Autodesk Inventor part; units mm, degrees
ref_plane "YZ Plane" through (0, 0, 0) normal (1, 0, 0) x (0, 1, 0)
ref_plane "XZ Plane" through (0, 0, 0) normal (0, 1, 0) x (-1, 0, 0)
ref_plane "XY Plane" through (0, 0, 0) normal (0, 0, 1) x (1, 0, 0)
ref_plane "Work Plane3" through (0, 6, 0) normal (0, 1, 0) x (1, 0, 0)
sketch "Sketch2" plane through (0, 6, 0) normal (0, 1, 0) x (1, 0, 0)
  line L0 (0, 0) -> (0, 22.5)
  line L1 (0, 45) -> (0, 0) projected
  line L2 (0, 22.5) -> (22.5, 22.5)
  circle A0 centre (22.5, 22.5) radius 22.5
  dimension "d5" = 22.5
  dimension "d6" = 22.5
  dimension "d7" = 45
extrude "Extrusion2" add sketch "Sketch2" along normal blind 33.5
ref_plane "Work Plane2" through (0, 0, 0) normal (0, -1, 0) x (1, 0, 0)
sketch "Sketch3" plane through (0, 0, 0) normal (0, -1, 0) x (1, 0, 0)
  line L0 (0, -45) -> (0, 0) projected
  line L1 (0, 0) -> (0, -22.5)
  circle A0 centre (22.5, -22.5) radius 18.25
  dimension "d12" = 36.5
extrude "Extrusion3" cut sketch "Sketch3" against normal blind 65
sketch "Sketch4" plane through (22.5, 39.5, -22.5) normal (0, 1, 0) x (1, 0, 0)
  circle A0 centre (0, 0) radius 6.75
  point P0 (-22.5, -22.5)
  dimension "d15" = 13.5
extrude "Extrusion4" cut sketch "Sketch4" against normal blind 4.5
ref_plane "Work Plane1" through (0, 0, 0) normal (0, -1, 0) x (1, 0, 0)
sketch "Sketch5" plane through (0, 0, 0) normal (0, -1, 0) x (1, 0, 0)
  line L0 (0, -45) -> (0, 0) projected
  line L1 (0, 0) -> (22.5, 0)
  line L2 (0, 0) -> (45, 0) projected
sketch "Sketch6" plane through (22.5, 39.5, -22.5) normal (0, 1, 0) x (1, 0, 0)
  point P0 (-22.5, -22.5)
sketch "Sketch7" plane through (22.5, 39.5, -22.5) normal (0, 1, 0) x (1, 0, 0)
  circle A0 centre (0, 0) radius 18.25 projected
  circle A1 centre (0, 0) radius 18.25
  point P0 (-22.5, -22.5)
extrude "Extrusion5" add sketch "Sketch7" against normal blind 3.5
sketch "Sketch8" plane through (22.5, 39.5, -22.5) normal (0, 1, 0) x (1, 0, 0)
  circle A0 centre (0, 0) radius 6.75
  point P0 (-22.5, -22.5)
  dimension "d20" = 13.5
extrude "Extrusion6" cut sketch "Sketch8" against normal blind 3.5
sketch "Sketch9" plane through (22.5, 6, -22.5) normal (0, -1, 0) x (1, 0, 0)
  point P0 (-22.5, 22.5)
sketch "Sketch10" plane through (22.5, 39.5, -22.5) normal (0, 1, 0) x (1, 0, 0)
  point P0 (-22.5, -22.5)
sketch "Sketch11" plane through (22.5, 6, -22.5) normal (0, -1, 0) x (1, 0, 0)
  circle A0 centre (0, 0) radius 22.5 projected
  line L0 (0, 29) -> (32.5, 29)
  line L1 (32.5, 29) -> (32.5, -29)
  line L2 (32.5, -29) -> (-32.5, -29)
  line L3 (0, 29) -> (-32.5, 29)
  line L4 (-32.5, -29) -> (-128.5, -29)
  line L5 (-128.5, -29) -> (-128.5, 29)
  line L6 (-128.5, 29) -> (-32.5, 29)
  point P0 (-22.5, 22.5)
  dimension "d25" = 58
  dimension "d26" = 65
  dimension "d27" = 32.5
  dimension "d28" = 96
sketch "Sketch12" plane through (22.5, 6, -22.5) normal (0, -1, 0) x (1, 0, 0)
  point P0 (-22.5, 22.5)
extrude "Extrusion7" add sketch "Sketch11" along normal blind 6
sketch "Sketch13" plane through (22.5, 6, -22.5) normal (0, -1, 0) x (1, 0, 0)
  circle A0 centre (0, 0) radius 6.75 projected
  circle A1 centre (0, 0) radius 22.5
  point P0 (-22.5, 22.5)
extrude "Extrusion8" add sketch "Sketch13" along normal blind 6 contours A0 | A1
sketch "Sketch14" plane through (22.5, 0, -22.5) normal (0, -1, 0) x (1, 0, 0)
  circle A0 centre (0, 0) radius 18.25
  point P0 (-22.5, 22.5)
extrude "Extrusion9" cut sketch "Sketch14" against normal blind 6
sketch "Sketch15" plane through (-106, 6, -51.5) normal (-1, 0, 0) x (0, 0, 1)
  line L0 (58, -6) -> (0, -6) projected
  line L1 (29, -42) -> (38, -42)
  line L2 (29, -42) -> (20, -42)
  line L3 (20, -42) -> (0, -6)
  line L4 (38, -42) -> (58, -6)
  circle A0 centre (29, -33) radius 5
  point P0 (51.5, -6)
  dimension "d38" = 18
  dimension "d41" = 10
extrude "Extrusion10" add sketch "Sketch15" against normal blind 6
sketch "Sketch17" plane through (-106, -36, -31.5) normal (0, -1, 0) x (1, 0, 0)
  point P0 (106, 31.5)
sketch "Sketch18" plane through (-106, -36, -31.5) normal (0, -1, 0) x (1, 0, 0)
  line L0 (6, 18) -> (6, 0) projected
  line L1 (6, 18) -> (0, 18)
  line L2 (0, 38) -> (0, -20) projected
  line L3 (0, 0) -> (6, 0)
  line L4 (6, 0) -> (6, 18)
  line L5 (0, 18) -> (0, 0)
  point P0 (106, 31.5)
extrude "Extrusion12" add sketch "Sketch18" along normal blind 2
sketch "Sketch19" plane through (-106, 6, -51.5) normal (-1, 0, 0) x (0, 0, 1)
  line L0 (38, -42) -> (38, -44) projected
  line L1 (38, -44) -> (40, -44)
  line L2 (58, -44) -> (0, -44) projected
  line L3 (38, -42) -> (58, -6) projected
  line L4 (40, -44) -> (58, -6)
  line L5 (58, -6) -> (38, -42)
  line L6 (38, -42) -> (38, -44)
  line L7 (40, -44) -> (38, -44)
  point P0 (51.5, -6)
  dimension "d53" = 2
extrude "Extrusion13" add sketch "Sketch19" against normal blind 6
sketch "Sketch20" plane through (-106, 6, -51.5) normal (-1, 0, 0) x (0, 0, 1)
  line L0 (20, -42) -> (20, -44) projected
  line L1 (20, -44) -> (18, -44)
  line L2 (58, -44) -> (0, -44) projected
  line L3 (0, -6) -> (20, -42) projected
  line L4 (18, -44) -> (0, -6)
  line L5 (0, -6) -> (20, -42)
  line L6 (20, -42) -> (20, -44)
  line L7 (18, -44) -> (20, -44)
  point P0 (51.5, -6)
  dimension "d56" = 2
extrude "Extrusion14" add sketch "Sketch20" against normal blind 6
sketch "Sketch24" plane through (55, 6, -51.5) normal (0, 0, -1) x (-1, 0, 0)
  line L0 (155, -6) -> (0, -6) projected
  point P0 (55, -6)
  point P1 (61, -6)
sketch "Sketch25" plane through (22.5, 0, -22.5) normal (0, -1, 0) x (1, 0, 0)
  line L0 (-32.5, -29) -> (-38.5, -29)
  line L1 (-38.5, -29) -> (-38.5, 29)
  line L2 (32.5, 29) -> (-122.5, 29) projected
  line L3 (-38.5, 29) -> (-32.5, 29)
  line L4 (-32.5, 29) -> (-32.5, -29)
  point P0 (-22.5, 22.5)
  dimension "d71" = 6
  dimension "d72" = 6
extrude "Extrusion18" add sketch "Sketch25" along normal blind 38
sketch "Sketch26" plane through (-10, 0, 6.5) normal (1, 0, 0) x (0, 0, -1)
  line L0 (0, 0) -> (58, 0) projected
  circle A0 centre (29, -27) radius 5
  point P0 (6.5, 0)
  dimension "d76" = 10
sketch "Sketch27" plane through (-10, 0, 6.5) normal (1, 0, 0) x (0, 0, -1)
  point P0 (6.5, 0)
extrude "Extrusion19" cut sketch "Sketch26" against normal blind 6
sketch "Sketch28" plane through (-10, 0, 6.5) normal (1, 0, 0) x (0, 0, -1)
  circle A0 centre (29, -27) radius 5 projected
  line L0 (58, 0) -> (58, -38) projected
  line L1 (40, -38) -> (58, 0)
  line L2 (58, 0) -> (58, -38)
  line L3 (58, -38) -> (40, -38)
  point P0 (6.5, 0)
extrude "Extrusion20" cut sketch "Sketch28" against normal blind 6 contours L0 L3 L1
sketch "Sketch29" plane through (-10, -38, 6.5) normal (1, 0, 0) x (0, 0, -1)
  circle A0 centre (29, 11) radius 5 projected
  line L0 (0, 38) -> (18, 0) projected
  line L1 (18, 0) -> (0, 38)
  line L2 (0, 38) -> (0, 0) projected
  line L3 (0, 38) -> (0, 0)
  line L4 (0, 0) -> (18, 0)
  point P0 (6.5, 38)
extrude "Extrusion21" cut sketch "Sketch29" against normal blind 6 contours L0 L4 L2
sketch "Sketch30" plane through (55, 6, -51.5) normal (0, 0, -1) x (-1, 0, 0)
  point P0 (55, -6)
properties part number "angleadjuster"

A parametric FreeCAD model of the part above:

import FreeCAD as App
import Part
import Sketcher
from FreeCAD import Vector

doc = App.newDocument("Part")
body = doc.addObject("PartDesign::Body", "Body")
body.AllowCompound = True

# Sketch on XZ plane
sketch1 = body.newObject("Sketcher::SketchObject", "Sketch")
sketch1.AttachmentSupport = (doc.getObject("XZ_Plane"), [""])
sketch1.MapMode = "FlatFace"
sketch1.AttachmentOffset = App.Placement(Vector(0, 0, -6), App.Rotation())
sketch1.addGeometry(Part.Circle(Vector(22.5, -22.5, 0), Vector(0, 0, 1), 22.5), False)
sketch1.addConstraint([
    Sketcher.Constraint("Diameter", 0, 45.0),
    Sketcher.Constraint("DistanceX", -1, 1, 0, 3, 22.5),
    Sketcher.Constraint("DistanceY", 0, 3, -1, 1, 22.5),
])
pad1 = body.newObject("PartDesign::Pad", "Pad")
pad1.Profile = sketch1
pad1.Length = 33.5
pad1.Reversed = True

# Sketch on XZ plane
sketch2 = body.newObject("Sketcher::SketchObject", "Sketch001")
sketch2.AttachmentSupport = (doc.getObject("XZ_Plane"), [""])
sketch2.MapMode = "FlatFace"
sketch2.addGeometry(Part.Circle(Vector(22.5, -22.5, 0), Vector(0, 0, 1), 18.25), False)
sketch2.addConstraint([
    Sketcher.Constraint("Diameter", 0, 36.5),
    Sketcher.Constraint("DistanceX", -1, 1, 0, 3, 22.5),
    Sketcher.Constraint("DistanceY", 0, 3, -1, 1, 22.5),
])
pocket1 = body.newObject("PartDesign::Pocket", "Pocket")
pocket1.Profile = sketch2
pocket1.Length = 65

# Sketch on XZ plane
sketch3 = body.newObject("Sketcher::SketchObject", "Sketch002")
sketch3.AttachmentSupport = (doc.getObject("XZ_Plane"), [""])
sketch3.MapMode = "FlatFace"
sketch3.AttachmentOffset = App.Placement(Vector(0, 0, -39.5), App.Rotation())
sketch3.addGeometry(Part.Circle(Vector(22.5, -22.5, 0), Vector(0, 0, 1), 6.75), False)
sketch3.addConstraint([
    Sketcher.Constraint("Diameter", 0, 13.5),
    Sketcher.Constraint("DistanceX", -1, 1, 0, 3, 22.5),
    Sketcher.Constraint("DistanceY", 0, 3, -1, 1, 22.5),
])
pocket2 = body.newObject("PartDesign::Pocket", "Pocket001")
pocket2.Profile = sketch3
pocket2.Length = 4.5
pocket2.Reversed = True

# Sketch on XZ plane
sketch4 = body.newObject("Sketcher::SketchObject", "Sketch003")
sketch4.AttachmentSupport = (doc.getObject("XZ_Plane"), [""])
sketch4.MapMode = "FlatFace"
sketch4.AttachmentOffset = App.Placement(Vector(0, 0, -39.5), App.Rotation())
sketch4.addGeometry(Part.Circle(Vector(22.5, -22.5, 0), Vector(0, 0, 1), 18.25), False)
sketch4.addConstraint([
    Sketcher.Constraint("Diameter", 0, 36.5),
    Sketcher.Constraint("DistanceX", -1, 1, 0, 3, 22.5),
    Sketcher.Constraint("DistanceY", 0, 3, -1, 1, 22.5),
])
pad2 = body.newObject("PartDesign::Pad", "Pad001")
pad2.Profile = sketch4
pad2.Length = 3.5

# Sketch on XZ plane
sketch5 = body.newObject("Sketcher::SketchObject", "Sketch004")
sketch5.AttachmentSupport = (doc.getObject("XZ_Plane"), [""])
sketch5.MapMode = "FlatFace"
sketch5.AttachmentOffset = App.Placement(Vector(0, 0, -39.5), App.Rotation())
sketch5.addGeometry(Part.Circle(Vector(22.5, -22.5, 0), Vector(0, 0, 1), 6.75), False)
sketch5.addConstraint([
    Sketcher.Constraint("Diameter", 0, 13.5),
    Sketcher.Constraint("DistanceX", -1, 1, 0, 3, 22.5),
    Sketcher.Constraint("DistanceY", 0, 3, -1, 1, 22.5),
])
pocket3 = body.newObject("PartDesign::Pocket", "Pocket002")
pocket3.Profile = sketch5
pocket3.Length = 3.5
pocket3.Reversed = True

# Sketch on XZ plane
sketch6 = body.newObject("Sketcher::SketchObject", "Sketch005")
sketch6.AttachmentSupport = (doc.getObject("XZ_Plane"), [""])
sketch6.MapMode = "FlatFace"
sketch6.AttachmentOffset = App.Placement(Vector(0, 0, -6), App.Rotation())
sketch6.addGeometry([
    Part.LineSegment(Vector(55, 6.5, 0), Vector(-106, 6.5, 0)),  # 0
    Part.LineSegment(Vector(-106, 6.5, 0), Vector(-106, -51.5, 0)),  # 1
    Part.LineSegment(Vector(-106, -51.5, 0), Vector(55, -51.5, 0)),  # 2
    Part.LineSegment(Vector(55, -51.5, 0), Vector(55, 6.5, 0)),  # 3
    Part.Circle(Vector(22.5, -22.5, 0), Vector(0, 0, 1), 22.5),  # 4
], False)
sketch6.addConstraint([
    Sketcher.Constraint("Coincident", 0, 2, 1, 1),
    Sketcher.Constraint("Coincident", 1, 2, 2, 1),
    Sketcher.Constraint("Coincident", 2, 2, 3, 1),
    Sketcher.Constraint("Coincident", 3, 2, 0, 1),
    Sketcher.Constraint("Horizontal", 0),
    Sketcher.Constraint("Vertical", 1),
    Sketcher.Constraint("Horizontal", 2),
    Sketcher.Constraint("Vertical", 3),
    Sketcher.Constraint("DistanceY", 1, 2, 1, 1, 58.0),
    Sketcher.Constraint("Diameter", 4, 45.0),
    Sketcher.Constraint("DistanceX", 4, 3, 2, 2, 32.5),
    Sketcher.Constraint("DistanceX", 0, 2, 0, 1, 161.0),
    Sketcher.Constraint("DistanceX", 0, 2, -1, 1, 106.0),
    Sketcher.Constraint("DistanceY", 4, 3, 0, 2, 29.0),
    Sketcher.Constraint("DistanceY", 4, 3, -1, 1, 22.5),
])
pad3 = body.newObject("PartDesign::Pad", "Pad002")
pad3.Profile = sketch6
pad3.Length = 6

# Sketch on XZ plane
sketch7 = body.newObject("Sketcher::SketchObject", "Sketch006")
sketch7.AttachmentSupport = (doc.getObject("XZ_Plane"), [""])
sketch7.MapMode = "FlatFace"
sketch7.AttachmentOffset = App.Placement(Vector(0, 0, -6), App.Rotation())
sketch7.addGeometry(Part.Circle(Vector(22.5, -22.5, 0), Vector(0, 0, 1), 22.5), False)
sketch7.addConstraint([
    Sketcher.Constraint("Diameter", 0, 45.0),
    Sketcher.Constraint("DistanceX", -1, 1, 0, 3, 22.5),
    Sketcher.Constraint("DistanceY", 0, 3, -1, 1, 22.5),
])
pad4 = body.newObject("PartDesign::Pad", "Pad003")
pad4.Profile = sketch7
pad4.Length = 6

# Sketch on XZ plane
sketch8 = body.newObject("Sketcher::SketchObject", "Sketch007")
sketch8.AttachmentSupport = (doc.getObject("XZ_Plane"), [""])
sketch8.MapMode = "FlatFace"
sketch8.addGeometry(Part.Circle(Vector(22.5, -22.5, 0), Vector(0, 0, 1), 18.25), False)
sketch8.addConstraint([
    Sketcher.Constraint("Diameter", 0, 36.5),
    Sketcher.Constraint("DistanceX", -1, 1, 0, 3, 22.5),
    Sketcher.Constraint("DistanceY", 0, 3, -1, 1, 22.5),
])
pocket4 = body.newObject("PartDesign::Pocket", "Pocket003")
pocket4.Profile = sketch8
pocket4.Length = 6

# Sketch on YZ plane
sketch9 = body.newObject("Sketcher::SketchObject", "Sketch008")
sketch9.AttachmentSupport = (doc.getObject("YZ_Plane"), [""])
sketch9.MapMode = "FlatFace"
sketch9.AttachmentOffset = App.Placement(Vector(0, 0, -106), App.Rotation())
sketch9.addGeometry([
    Part.LineSegment(Vector(-36, -13.5, 0), Vector(0, 6.5, 0)),  # 0
    Part.LineSegment(Vector(0, 6.5, 0), Vector(0, -51.5, 0)),  # 1
    Part.LineSegment(Vector(0, -51.5, 0), Vector(-36, -31.5, 0)),  # 2
    Part.LineSegment(Vector(-36, -31.5, 0), Vector(-36, -13.5, 0)),  # 3
    Part.Circle(Vector(-27, -22.5, 0), Vector(0, 0, 1), 5),  # 4
], False)
sketch9.addConstraint([
    Sketcher.Constraint("Coincident", 0, 2, 1, 1),
    Sketcher.Constraint("Coincident", 1, 2, 2, 1),
    Sketcher.Constraint("Coincident", 2, 2, 3, 1),
    Sketcher.Constraint("Coincident", 3, 2, 0, 1),
    Sketcher.Constraint("Vertical", 1),
    Sketcher.Constraint("Vertical", 3),
    Sketcher.Constraint("PointOnObject", 0, 2, -2),
    Sketcher.Constraint("Equal", 0, 2),
    Sketcher.Constraint("Diameter", 4, 10.0),
    Sketcher.Constraint("DistanceY", 3, 1, 3, 2, 18.0),
    Sketcher.Constraint("DistanceY", 1, 2, 1, 1, 58.0),
    Sketcher.Constraint("DistanceX", 4, 3, -1, 1, 27.0),
    Sketcher.Constraint("DistanceX", 2, 2, -1, 1, 36.0),
    Sketcher.Constraint("DistanceY", 4, 3, 0, 2, 29.0),
    Sketcher.Constraint("DistanceY", 4, 3, -1, 1, 22.5),
])
pad5 = body.newObject("PartDesign::Pad", "Pad004")
pad5.Profile = sketch9
pad5.Length = 6

# Sketch on XZ plane
sketch10 = body.newObject("Sketcher::SketchObject", "Sketch009")
sketch10.AttachmentSupport = (doc.getObject("XZ_Plane"), [""])
sketch10.MapMode = "FlatFace"
sketch10.AttachmentOffset = App.Placement(Vector(0, 0, 36), App.Rotation())
sketch10.addGeometry([
    Part.LineSegment(Vector(-100, -31.5, 0), Vector(-100, -13.5, 0)),
    Part.LineSegment(Vector(-100, -13.5, 0), Vector(-106, -13.5, 0)),
    Part.LineSegment(Vector(-106, -13.5, 0), Vector(-106, -31.5, 0)),
    Part.LineSegment(Vector(-106, -31.5, 0), Vector(-100, -31.5, 0)),
], False)
sketch10.addConstraint([
    Sketcher.Constraint("Coincident", 0, 2, 1, 1),
    Sketcher.Constraint("Coincident", 1, 2, 2, 1),
    Sketcher.Constraint("Coincident", 2, 2, 3, 1),
    Sketcher.Constraint("Coincident", 3, 2, 0, 1),
    Sketcher.Constraint("Vertical", 0),
    Sketcher.Constraint("Horizontal", 1),
    Sketcher.Constraint("Vertical", 2),
    Sketcher.Constraint("Horizontal", 3),
    Sketcher.Constraint("DistanceX", 1, 2, 1, 1, 6.0),
    Sketcher.Constraint("DistanceY", 0, 1, 0, 2, 18.0),
    Sketcher.Constraint("DistanceX", 0, 2, -1, 1, 100.0),
    Sketcher.Constraint("DistanceY", 0, 2, -1, 1, 13.5),
])
pad6 = body.newObject("PartDesign::Pad", "Pad005")
pad6.Profile = sketch10
pad6.Length = 2

# Sketch on YZ plane
sketch11 = body.newObject("Sketcher::SketchObject", "Sketch010")
sketch11.AttachmentSupport = (doc.getObject("YZ_Plane"), [""])
sketch11.MapMode = "FlatFace"
sketch11.AttachmentOffset = App.Placement(Vector(0, 0, -106), App.Rotation())
sketch11.addGeometry([
    Part.LineSegment(Vector(0, 6.5, 0), Vector(-36, -13.5, 0)),
    Part.LineSegment(Vector(-36, -13.5, 0), Vector(-38, -13.5, 0)),
    Part.LineSegment(Vector(-38, -13.5, 0), Vector(-38, -11.5, 0)),
    Part.LineSegment(Vector(-38, -11.5, 0), Vector(0, 6.5, 0)),
], False)
sketch11.addConstraint([
    Sketcher.Constraint("Coincident", 0, 2, 1, 1),
    Sketcher.Constraint("Coincident", 1, 2, 2, 1),
    Sketcher.Constraint("Coincident", 2, 2, 3, 1),
    Sketcher.Constraint("Coincident", 3, 2, 0, 1),
    Sketcher.Constraint("Horizontal", 1),
    Sketcher.Constraint("Vertical", 2),
    Sketcher.Constraint("PointOnObject", 3, 2, -2),
    Sketcher.Constraint("Equal", 1, 2),
    Sketcher.Constraint("DistanceX", 1, 2, 1, 1, 2.0),
    Sketcher.Constraint("DistanceX", 0, 2, -1, 1, 36.0),
    Sketcher.Constraint("DistanceY", 0, 2, 3, 2, 20.0),
    Sketcher.Constraint("DistanceY", 0, 2, -1, 1, 13.5),
])
pad7 = body.newObject("PartDesign::Pad", "Pad006")
pad7.Profile = sketch11
pad7.Length = 6

# Sketch on YZ plane
sketch12 = body.newObject("Sketcher::SketchObject", "Sketch011")
sketch12.AttachmentSupport = (doc.getObject("YZ_Plane"), [""])
sketch12.MapMode = "FlatFace"
sketch12.AttachmentOffset = App.Placement(Vector(0, 0, -106), App.Rotation())
sketch12.addGeometry([
    Part.LineSegment(Vector(-38, -31.5, 0), Vector(-36, -31.5, 0)),
    Part.LineSegment(Vector(-36, -31.5, 0), Vector(0, -51.5, 0)),
    Part.LineSegment(Vector(0, -51.5, 0), Vector(-38, -33.5, 0)),
    Part.LineSegment(Vector(-38, -33.5, 0), Vector(-38, -31.5, 0)),
], False)
sketch12.addConstraint([
    Sketcher.Constraint("Coincident", 0, 2, 1, 1),
    Sketcher.Constraint("Coincident", 1, 2, 2, 1),
    Sketcher.Constraint("Coincident", 2, 2, 3, 1),
    Sketcher.Constraint("Coincident", 3, 2, 0, 1),
    Sketcher.Constraint("Horizontal", 0),
    Sketcher.Constraint("Vertical", 3),
    Sketcher.Constraint("PointOnObject", 1, 2, -2),
    Sketcher.Constraint("Equal", 0, 3),
    Sketcher.Constraint("DistanceX", 0, 1, 0, 2, 2.0),
    Sketcher.Constraint("DistanceX", 0, 2, -1, 1, 36.0),
    Sketcher.Constraint("DistanceY", 1, 2, 0, 2, 20.0),
    Sketcher.Constraint("DistanceY", 0, 2, -1, 1, 31.5),
])
pad8 = body.newObject("PartDesign::Pad", "Pad007")
pad8.Profile = sketch12
pad8.Length = 6

# Sketch on XZ plane
sketch13 = body.newObject("Sketcher::SketchObject", "Sketch012")
sketch13.AttachmentSupport = (doc.getObject("XZ_Plane"), [""])
sketch13.MapMode = "FlatFace"
sketch13.addGeometry([
    Part.LineSegment(Vector(-16, -51.5, 0), Vector(-10, -51.5, 0)),
    Part.LineSegment(Vector(-10, -51.5, 0), Vector(-10, 6.5, 0)),
    Part.LineSegment(Vector(-10, 6.5, 0), Vector(-16, 6.5, 0)),
    Part.LineSegment(Vector(-16, 6.5, 0), Vector(-16, -51.5, 0)),
], False)
sketch13.addConstraint([
    Sketcher.Constraint("Coincident", 0, 2, 1, 1),
    Sketcher.Constraint("Coincident", 1, 2, 2, 1),
    Sketcher.Constraint("Coincident", 2, 2, 3, 1),
    Sketcher.Constraint("Coincident", 3, 2, 0, 1),
    Sketcher.Constraint("Horizontal", 0),
    Sketcher.Constraint("Vertical", 1),
    Sketcher.Constraint("Horizontal", 2),
    Sketcher.Constraint("Vertical", 3),
    Sketcher.Constraint("DistanceX", 0, 1, 0, 2, 6.0),
    Sketcher.Constraint("DistanceY", 1, 1, 1, 2, 58.0),
    Sketcher.Constraint("DistanceX", 0, 2, -1, 1, 10.0),
    Sketcher.Constraint("DistanceY", 0, 2, -1, 1, 51.5),
])
pad9 = body.newObject("PartDesign::Pad", "Pad008")
pad9.Profile = sketch13
pad9.Length = 38

# Sketch on YZ plane
sketch14 = body.newObject("Sketcher::SketchObject", "Sketch013")
sketch14.AttachmentSupport = (doc.getObject("YZ_Plane"), [""])
sketch14.MapMode = "FlatFace"
sketch14.AttachmentOffset = App.Placement(Vector(0, 0, -10), App.Rotation())
sketch14.addGeometry(Part.Circle(Vector(-27, -22.5, 0), Vector(0, 0, 1), 5), False)
sketch14.addConstraint([
    Sketcher.Constraint("Diameter", 0, 10.0),
    Sketcher.Constraint("DistanceX", 0, 3, -1, 1, 27.0),
    Sketcher.Constraint("DistanceY", 0, 3, -1, 1, 22.5),
])
pocket5 = body.newObject("PartDesign::Pocket", "Pocket004")
pocket5.Profile = sketch14
pocket5.Length = 6

# Sketch on YZ plane
sketch15 = body.newObject("Sketcher::SketchObject", "Sketch014")
sketch15.AttachmentSupport = (doc.getObject("YZ_Plane"), [""])
sketch15.MapMode = "FlatFace"
sketch15.AttachmentOffset = App.Placement(Vector(0, 0, -10), App.Rotation())
sketch15.addGeometry([
    Part.LineSegment(Vector(-38, -51.5, 0), Vector(0, -51.5, 0)),
    Part.LineSegment(Vector(0, -51.5, 0), Vector(-38, -33.5, 0)),
    Part.LineSegment(Vector(-38, -33.5, 0), Vector(-38, -51.5, 0)),
], False)
sketch15.addConstraint([
    Sketcher.Constraint("Coincident", 0, 2, 1, 1),
    Sketcher.Constraint("Coincident", 1, 2, 2, 1),
    Sketcher.Constraint("Coincident", 2, 2, 0, 1),
    Sketcher.Constraint("Horizontal", 0),
    Sketcher.Constraint("Vertical", 2),
    Sketcher.Constraint("PointOnObject", 0, 2, -2),
    Sketcher.Constraint("DistanceX", 0, 1, 0, 2, 38.0),
    Sketcher.Constraint("DistanceY", 2, 2, 2, 1, 18.0),
    Sketcher.Constraint("DistanceY", 0, 2, -1, 1, 51.5),
])
pocket6 = body.newObject("PartDesign::Pocket", "Pocket005")
pocket6.Profile = sketch15
pocket6.Length = 6

# Sketch on YZ plane
sketch16 = body.newObject("Sketcher::SketchObject", "Sketch015")
sketch16.AttachmentSupport = (doc.getObject("YZ_Plane"), [""])
sketch16.MapMode = "FlatFace"
sketch16.AttachmentOffset = App.Placement(Vector(0, 0, -10), App.Rotation())
sketch16.addGeometry([
    Part.LineSegment(Vector(-38, -11.5, 0), Vector(0, 6.5, 0)),
    Part.LineSegment(Vector(0, 6.5, 0), Vector(-38, 6.5, 0)),
    Part.LineSegment(Vector(-38, 6.5, 0), Vector(-38, -11.5, 0)),
], False)
sketch16.addConstraint([
    Sketcher.Constraint("Coincident", 0, 2, 1, 1),
    Sketcher.Constraint("Coincident", 1, 2, 2, 1),
    Sketcher.Constraint("Coincident", 2, 2, 0, 1),
    Sketcher.Constraint("Horizontal", 1),
    Sketcher.Constraint("Vertical", 2),
    Sketcher.Constraint("PointOnObject", 0, 2, -2),
    Sketcher.Constraint("DistanceX", 1, 2, 1, 1, 38.0),
    Sketcher.Constraint("DistanceY", 2, 2, 2, 1, 18.0),
    Sketcher.Constraint("DistanceY", -1, 1, 0, 2, 6.5),
])
pocket7 = body.newObject("PartDesign::Pocket", "Pocket006")
pocket7.Profile = sketch16
pocket7.Length = 6

doc.recompute()
